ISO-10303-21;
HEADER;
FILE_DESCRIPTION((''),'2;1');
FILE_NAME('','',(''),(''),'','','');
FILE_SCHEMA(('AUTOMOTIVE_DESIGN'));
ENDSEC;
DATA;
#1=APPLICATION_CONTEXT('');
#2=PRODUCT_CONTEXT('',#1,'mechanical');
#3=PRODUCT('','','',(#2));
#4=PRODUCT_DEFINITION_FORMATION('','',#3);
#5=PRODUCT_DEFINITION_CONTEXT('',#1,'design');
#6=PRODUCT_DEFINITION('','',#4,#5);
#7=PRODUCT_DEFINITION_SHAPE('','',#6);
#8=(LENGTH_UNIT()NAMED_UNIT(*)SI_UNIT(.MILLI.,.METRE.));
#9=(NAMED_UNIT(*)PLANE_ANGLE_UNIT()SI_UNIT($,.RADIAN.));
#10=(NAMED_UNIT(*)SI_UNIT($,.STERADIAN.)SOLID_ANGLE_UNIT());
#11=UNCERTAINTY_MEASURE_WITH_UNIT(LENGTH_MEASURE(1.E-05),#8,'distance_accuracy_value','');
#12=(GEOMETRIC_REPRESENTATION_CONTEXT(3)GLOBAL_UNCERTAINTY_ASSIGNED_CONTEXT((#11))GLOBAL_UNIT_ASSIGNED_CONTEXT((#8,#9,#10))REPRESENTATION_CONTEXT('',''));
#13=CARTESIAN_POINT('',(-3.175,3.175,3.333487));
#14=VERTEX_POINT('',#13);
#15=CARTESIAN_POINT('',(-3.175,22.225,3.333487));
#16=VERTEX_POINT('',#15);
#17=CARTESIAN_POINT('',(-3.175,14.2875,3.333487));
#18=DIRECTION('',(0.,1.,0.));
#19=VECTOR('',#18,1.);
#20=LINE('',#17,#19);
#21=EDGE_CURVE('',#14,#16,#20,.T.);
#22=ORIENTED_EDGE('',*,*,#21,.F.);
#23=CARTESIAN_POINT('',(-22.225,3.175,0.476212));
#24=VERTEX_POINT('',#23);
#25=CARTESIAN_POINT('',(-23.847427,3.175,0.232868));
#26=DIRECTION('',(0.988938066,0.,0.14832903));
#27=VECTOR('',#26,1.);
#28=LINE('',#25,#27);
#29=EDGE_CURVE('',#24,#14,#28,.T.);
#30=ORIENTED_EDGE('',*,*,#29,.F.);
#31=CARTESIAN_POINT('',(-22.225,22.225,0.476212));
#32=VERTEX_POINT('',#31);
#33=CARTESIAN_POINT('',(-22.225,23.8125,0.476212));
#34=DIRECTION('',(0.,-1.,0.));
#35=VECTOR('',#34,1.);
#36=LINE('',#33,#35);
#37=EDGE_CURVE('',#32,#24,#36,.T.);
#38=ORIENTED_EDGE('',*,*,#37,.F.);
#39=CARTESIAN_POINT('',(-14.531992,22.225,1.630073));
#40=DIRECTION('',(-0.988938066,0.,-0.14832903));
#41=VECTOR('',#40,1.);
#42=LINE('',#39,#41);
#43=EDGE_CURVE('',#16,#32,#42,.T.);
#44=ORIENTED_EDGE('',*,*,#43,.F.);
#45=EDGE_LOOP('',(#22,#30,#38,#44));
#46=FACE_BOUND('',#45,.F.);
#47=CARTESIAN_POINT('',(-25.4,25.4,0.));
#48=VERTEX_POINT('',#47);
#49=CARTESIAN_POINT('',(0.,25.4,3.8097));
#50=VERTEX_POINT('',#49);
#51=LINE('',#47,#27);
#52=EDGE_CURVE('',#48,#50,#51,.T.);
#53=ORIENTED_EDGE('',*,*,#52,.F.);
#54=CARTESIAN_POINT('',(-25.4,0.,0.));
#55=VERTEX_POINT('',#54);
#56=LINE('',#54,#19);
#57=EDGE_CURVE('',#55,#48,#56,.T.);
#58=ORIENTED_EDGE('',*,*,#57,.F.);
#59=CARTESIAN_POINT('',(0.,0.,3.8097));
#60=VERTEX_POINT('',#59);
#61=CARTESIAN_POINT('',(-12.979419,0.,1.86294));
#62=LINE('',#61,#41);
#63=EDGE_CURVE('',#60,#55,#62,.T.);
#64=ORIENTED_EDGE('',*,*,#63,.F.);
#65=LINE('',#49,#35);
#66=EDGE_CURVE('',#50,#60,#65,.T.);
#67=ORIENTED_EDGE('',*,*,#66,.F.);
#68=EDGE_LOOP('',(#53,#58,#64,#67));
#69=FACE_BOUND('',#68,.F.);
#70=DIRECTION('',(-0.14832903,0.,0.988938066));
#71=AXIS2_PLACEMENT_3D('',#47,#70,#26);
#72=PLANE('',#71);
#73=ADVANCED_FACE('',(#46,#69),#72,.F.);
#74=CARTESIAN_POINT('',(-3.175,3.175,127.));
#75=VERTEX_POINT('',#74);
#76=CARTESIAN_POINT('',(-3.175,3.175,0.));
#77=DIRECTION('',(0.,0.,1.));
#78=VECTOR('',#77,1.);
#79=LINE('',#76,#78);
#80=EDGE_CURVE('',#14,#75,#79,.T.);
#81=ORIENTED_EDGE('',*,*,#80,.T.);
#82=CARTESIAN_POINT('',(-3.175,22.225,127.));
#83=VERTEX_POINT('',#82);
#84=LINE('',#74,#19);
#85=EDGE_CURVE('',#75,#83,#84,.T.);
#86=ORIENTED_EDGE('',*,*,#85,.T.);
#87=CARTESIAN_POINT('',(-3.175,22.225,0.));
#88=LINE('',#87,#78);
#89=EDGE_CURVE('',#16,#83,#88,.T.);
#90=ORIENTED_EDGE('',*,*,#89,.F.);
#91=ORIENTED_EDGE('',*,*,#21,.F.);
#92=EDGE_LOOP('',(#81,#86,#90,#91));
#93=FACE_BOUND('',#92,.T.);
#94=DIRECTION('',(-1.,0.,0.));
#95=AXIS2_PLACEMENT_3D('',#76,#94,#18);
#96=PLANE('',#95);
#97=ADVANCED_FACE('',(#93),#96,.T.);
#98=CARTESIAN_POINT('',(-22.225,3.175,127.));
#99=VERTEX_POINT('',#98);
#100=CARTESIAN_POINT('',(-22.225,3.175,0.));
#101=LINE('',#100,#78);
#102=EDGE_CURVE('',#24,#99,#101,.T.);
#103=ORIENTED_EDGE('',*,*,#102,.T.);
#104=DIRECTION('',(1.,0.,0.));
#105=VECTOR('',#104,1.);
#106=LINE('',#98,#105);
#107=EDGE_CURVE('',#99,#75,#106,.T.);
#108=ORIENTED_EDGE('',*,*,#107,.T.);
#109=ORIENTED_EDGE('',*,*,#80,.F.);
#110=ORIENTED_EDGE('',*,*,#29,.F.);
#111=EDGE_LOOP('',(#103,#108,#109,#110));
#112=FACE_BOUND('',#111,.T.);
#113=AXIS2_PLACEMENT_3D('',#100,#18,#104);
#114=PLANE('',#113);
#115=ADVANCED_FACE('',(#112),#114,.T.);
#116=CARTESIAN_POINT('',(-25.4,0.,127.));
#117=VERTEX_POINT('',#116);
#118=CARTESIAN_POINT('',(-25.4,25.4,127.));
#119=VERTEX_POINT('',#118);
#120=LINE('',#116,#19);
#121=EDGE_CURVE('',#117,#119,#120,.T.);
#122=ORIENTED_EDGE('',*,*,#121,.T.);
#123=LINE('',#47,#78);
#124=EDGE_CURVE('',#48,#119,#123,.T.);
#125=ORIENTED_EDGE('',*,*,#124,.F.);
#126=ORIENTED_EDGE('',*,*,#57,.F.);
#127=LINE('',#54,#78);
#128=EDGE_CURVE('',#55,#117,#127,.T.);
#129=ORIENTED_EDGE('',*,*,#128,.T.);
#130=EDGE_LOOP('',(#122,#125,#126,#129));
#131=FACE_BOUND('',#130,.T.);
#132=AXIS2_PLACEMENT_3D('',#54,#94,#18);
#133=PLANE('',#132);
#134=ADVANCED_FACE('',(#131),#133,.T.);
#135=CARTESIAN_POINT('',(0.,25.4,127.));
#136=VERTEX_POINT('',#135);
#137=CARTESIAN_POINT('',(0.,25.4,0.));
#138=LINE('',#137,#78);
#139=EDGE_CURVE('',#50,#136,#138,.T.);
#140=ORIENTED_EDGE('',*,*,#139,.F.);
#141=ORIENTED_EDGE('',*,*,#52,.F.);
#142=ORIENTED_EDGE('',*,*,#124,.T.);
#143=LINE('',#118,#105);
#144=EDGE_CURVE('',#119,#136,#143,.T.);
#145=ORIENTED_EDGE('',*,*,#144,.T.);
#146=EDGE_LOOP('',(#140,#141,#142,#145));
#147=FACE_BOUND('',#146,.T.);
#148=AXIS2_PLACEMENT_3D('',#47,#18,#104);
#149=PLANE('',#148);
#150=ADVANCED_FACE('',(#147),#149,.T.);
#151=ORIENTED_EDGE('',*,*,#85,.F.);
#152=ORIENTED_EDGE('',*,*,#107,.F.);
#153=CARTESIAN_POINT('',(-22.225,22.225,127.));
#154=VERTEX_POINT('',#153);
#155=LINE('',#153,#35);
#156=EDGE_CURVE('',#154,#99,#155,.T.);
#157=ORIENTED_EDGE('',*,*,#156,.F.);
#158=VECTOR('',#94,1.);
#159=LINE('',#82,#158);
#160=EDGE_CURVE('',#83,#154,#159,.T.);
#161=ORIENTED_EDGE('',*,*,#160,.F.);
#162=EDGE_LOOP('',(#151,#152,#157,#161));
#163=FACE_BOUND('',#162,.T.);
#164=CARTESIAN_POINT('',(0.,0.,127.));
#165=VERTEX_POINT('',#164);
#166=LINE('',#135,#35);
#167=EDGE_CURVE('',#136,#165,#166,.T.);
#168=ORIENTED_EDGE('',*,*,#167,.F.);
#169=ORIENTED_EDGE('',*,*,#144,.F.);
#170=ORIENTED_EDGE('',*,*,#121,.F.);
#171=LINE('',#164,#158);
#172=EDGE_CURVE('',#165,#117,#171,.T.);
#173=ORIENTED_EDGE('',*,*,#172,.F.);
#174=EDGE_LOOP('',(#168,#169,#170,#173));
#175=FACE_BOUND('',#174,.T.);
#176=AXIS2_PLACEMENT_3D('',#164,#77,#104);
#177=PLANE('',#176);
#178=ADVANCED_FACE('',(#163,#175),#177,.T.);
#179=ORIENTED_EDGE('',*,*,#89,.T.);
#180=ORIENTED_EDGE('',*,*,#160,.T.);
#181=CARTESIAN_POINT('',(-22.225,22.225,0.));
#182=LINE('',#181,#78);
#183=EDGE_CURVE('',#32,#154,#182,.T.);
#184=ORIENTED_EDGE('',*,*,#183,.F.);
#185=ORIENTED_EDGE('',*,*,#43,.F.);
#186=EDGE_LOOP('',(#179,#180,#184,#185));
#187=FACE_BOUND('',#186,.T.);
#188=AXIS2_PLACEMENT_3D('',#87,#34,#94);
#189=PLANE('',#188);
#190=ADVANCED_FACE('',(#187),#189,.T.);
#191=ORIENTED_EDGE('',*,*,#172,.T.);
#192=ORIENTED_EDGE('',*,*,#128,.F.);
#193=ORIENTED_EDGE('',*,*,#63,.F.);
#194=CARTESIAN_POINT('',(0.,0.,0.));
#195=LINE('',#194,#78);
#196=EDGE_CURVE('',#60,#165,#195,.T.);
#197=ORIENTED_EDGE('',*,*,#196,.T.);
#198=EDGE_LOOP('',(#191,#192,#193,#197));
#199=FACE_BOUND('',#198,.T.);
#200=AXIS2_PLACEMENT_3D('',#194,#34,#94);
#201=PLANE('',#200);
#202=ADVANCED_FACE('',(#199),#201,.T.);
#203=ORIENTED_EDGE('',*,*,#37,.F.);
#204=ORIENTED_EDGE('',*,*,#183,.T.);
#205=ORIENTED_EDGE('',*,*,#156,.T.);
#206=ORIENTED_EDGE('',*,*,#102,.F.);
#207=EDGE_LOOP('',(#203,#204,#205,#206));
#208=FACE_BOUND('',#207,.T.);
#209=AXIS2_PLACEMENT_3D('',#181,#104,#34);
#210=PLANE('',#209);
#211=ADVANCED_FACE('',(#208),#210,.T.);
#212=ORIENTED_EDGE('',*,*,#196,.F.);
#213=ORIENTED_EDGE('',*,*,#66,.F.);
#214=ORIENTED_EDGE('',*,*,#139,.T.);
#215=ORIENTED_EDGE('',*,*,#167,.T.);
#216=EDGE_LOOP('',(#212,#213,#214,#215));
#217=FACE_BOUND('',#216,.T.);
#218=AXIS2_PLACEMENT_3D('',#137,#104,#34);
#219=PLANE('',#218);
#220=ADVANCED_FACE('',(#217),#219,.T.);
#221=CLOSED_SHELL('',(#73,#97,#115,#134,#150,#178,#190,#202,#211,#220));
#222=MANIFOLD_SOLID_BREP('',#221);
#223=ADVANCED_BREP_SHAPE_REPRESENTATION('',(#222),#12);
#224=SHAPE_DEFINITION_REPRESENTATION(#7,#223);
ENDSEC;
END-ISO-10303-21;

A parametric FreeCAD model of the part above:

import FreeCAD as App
import Part
import Sketcher
Q = App.Units.Quantity


def add_polygon(sketch, points):
    """Adds a closed chain of lines whose ends are joined by coincident constraints."""
    first, n = sketch.GeometryCount, len(points)
    for a, b in zip(points, points[1:] + points[:1]):
        sketch.addGeometry(Part.LineSegment(App.Vector(*a, 0), App.Vector(*b, 0)), False)
    for i in range(n):
        sketch.addConstraint(Sketcher.Constraint("Coincident", first + i, 2, first + (i + 1) % n, 1))

doc = App.newDocument("Part")
body = doc.addObject("PartDesign::Body", "Body")

sketch1 = body.newObject("Sketcher::SketchObject", "Sketch")
sketch1.AttachmentSupport = (doc.getObject("XY_Plane"), [""])
sketch1.MapMode = "FlatFace"
add_polygon(sketch1, [(-25, 0), (0, 0), (0, 25), (-25, 25)])
add_polygon(sketch1, [(-22, 22), (-3, 22), (-3, 3), (-22, 3)])
sketch1.addConstraint([
    Sketcher.Constraint("Horizontal", 0),
    Sketcher.Constraint("Vertical", 1),
    Sketcher.Constraint("Horizontal", 2),
    Sketcher.Constraint("Vertical", 3),
    Sketcher.Constraint("Horizontal", 4),
    Sketcher.Constraint("Vertical", 5),
    Sketcher.Constraint("Horizontal", 6),
    Sketcher.Constraint("Vertical", 7),
    Sketcher.Constraint("Coincident", 0, 2, -1, 1),
    Sketcher.Constraint("Equal", 2, 1),
    Sketcher.Constraint("Equal", 6, 5),
    Sketcher.Constraint("DistanceX", 0, 1, 0, 2, Q("1 in")),
    Sketcher.Constraint("DistanceX", 4, 2, -1, 1, Q("0.125 in")),
    Sketcher.Constraint("DistanceY", -1, 1, 5, 2, Q("0.125 in")),
    Sketcher.Constraint("DistanceY", 4, 2, 1, 2, Q("0.125 in")),
])
pad1 = body.newObject("PartDesign::Pad", "Pad")
pad1.Profile = sketch1
pad1.Length = Q("5 in")

sketch2 = body.newObject("Sketcher::SketchObject", "Sketch001")
sketch2.AttachmentSupport = (doc.getObject("XZ_Plane"), [""])
sketch2.MapMode = "FlatFace"
sketch2.AttachmentOffset = App.Placement(App.Vector(0, 0, -1 * 25.4), App.Rotation())
add_polygon(sketch2, [(0, 0), (-25.4, 0), (0, 3.8)])
sketch2.addConstraint([
    Sketcher.Constraint("Horizontal", 0),
    Sketcher.Constraint("Vertical", 2),
    Sketcher.Constraint("Coincident", 2, 2, -1, 1),
    Sketcher.Constraint("DistanceX", 0, 2, 0, 1, Q("1 in")),
    Sketcher.Constraint("Angle", 1, Q("8.53 deg")),
])
pocket1 = body.newObject("PartDesign::Pocket", "Pocket")
pocket1.Profile = sketch2
pocket1.Length = Q("5 in")
pocket1.Reversed = True

doc.recompute()
